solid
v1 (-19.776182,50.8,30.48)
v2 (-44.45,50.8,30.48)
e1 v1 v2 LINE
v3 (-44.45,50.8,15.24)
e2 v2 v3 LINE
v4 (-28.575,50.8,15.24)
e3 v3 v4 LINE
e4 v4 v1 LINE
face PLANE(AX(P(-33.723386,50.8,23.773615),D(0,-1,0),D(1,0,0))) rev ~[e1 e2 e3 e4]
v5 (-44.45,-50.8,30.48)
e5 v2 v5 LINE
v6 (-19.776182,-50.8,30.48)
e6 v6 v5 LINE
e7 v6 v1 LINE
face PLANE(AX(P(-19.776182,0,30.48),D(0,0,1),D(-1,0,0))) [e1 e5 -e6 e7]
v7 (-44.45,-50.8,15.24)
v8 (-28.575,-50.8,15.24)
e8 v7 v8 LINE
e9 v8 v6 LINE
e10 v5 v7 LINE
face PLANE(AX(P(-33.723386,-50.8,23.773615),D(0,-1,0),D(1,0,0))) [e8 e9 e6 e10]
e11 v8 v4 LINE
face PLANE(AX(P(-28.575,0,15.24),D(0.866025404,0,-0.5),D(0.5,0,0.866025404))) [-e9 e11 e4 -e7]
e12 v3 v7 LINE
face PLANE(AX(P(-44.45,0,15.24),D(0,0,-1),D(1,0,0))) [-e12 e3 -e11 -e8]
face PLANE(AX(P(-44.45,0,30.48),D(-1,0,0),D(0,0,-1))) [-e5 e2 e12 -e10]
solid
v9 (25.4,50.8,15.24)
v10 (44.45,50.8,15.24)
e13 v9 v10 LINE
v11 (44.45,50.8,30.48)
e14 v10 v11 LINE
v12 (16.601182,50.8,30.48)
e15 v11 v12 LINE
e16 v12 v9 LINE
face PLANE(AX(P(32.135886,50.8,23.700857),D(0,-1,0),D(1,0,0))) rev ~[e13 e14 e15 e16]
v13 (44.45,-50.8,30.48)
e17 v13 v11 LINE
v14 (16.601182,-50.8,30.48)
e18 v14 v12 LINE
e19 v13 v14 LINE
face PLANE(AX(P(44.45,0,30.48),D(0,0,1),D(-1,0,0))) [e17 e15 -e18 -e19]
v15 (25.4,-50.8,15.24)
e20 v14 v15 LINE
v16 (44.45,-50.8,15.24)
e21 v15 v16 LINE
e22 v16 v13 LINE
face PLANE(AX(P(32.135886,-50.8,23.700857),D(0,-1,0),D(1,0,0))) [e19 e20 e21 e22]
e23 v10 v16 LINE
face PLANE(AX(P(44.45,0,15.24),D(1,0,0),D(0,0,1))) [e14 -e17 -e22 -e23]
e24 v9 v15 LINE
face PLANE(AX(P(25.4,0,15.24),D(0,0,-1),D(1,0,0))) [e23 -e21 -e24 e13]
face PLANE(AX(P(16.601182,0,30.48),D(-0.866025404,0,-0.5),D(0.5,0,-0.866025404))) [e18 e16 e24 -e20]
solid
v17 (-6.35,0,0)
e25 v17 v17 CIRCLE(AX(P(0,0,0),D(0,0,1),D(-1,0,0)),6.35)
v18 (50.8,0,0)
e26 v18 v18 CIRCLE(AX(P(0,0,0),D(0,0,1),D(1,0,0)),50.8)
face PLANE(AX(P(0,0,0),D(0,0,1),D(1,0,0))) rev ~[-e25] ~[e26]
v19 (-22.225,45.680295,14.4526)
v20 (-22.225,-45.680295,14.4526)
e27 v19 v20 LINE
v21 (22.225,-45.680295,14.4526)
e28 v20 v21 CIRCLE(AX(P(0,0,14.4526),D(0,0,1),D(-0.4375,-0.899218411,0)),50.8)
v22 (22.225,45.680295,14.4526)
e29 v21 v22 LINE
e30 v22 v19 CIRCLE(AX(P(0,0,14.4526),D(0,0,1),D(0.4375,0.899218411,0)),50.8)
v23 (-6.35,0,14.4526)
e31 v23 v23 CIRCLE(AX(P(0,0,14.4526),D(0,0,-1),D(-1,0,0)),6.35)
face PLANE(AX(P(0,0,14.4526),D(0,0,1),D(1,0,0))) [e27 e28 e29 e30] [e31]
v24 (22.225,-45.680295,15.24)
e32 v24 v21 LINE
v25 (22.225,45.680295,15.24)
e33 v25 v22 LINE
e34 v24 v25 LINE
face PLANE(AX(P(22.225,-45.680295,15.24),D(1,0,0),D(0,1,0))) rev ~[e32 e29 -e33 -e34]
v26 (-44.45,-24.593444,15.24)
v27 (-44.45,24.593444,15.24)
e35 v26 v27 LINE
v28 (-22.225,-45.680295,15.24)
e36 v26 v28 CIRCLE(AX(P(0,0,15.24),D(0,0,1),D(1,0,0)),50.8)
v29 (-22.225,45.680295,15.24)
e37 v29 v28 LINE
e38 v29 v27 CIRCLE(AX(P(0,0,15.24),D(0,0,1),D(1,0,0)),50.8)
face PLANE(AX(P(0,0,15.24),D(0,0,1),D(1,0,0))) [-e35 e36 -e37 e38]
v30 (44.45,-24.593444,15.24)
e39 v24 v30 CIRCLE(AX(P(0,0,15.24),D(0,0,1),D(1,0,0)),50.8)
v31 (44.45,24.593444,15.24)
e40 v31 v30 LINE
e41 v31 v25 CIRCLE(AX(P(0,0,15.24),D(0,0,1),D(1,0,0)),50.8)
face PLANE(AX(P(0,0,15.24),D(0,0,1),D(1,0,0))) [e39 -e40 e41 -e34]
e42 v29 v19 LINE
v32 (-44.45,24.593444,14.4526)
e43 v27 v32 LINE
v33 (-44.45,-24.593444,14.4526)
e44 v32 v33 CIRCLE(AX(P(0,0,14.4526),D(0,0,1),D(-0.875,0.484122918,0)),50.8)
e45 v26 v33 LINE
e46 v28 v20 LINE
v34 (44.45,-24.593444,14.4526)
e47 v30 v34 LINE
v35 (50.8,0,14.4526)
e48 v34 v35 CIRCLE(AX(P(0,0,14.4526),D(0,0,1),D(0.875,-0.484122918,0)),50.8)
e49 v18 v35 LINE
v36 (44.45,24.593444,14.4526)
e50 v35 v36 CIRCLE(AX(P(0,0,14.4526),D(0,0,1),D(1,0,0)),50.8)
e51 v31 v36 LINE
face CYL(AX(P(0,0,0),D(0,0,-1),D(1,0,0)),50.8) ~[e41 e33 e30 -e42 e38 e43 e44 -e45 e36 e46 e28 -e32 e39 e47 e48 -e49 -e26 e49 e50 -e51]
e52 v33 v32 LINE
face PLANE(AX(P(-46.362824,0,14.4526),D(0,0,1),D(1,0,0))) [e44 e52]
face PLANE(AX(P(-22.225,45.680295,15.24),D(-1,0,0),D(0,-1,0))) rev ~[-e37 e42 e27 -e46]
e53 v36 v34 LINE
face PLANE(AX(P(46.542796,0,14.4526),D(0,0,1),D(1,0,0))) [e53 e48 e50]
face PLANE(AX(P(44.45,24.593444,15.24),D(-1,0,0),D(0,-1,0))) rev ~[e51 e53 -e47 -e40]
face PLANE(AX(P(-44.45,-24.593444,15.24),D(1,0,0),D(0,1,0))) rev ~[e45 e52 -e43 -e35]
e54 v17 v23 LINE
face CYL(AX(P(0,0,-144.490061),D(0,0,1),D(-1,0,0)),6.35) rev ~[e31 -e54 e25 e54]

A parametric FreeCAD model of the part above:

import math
import FreeCAD as App
import Part
import Sketcher
from FreeCAD import Vector
Q = App.Units.Quantity

doc = App.newDocument("Part")
params = doc.addObject("Spreadsheet::Sheet", "Params")
for row, (alias, value) in enumerate([
    ("sketch1_diameter", "4 in"),
    ("pad1_length", "0.6 in"),
    ("sketch2_diameter", "0.5 in"),
    ("hole_diameter", "0.5 in"),
    ("sketch3_radius", "2 in"),
    ("sketch3_diameter", "0.5 in"),
    ("pocket1_length", "0.031 in"),
    ("sketch4_height", "0.6 in"),
    ("sketch4_width", "0.75 in"),
    ("pad2_length", "2 in"),
    ("pad2_length2", "2 in"),
    ("sketch5_height", "0.6 in"),
    ("sketch5_width", "0.625 in"),
    ("pad3_length", "2 in"),
    ("pad3_length2", "2 in"),
], start=1):
    params.set(f"A{row}", alias)
    params.set(f"B{row}", "=" + value)
    params.setAlias(f"B{row}", alias)

body = doc.addObject("PartDesign::Body", "Body")

# Sketch on XY plane
sketch1 = doc.addObject("Sketcher::SketchObject", "Sketch")
body.addObject(sketch1)
sketch1.AttachmentSupport = (doc.XY_Plane, [""])
sketch1.MapMode = "FlatFace"
sketch1.addGeometry(Part.Circle(Vector(0, 0, 0), Vector(0, 0, 1), 50.8), False)
sketch1.addConstraint([
    Sketcher.Constraint("Coincident", 0, 3, -1, 1),
    Sketcher.Constraint("Diameter", 0, Q("4 in")),
])
sketch1.setExpression("Constraints[1]", "Params.sketch1_diameter")
pad1 = doc.addObject("PartDesign::Pad", "Pad")
body.addObject(pad1)
pad1.Profile = sketch1
pad1.setExpression("Length", "Params.pad1_length")

# Sketch on XY plane
sketch2 = doc.addObject("Sketcher::SketchObject", "Sketch001")
body.addObject(sketch2)
sketch2.AttachmentSupport = (doc.XY_Plane, [""])
sketch2.MapMode = "FlatFace"
sketch2.addGeometry(Part.Circle(Vector(0, 0, 0), Vector(0, 0, 1), 6.35), False)
sketch2.addConstraint([
    Sketcher.Constraint("Coincident", 0, 3, -1, 1),
    Sketcher.Constraint("Diameter", 0, Q("0.5 in")),
])
sketch2.setExpression("Constraints[1]", "Params.sketch2_diameter")
doc.recompute()
hole = doc.addObject("PartDesign::Hole", "Hole")
body.addObject(hole)
hole.Profile = sketch2
hole.ThreadType = "None"
hole.setExpression("Diameter", "Params.hole_diameter")
hole.DepthType = "ThroughAll"
hole.Reversed = True

# Sketch on XY plane
sketch3 = doc.addObject("Sketcher::SketchObject", "Sketch002")
body.addObject(sketch3)
sketch3.AttachmentSupport = (doc.XY_Plane, [""])
sketch3.MapMode = "FlatFace"
sketch3.AttachmentOffset = App.Placement(Vector(0, 0, 0.6 * 25.4), App.Rotation())
sketch3.addGeometry([
    Part.LineSegment(Vector(-44.45, -24.593444, 0), Vector(-44.45, 24.593444, 0)),  # 0
    Part.ArcOfCircle(Part.Circle(Vector(0, 0, 0), Vector(0, 0, 1), 50.8), math.radians(151.044976), math.radians(208.955024)),  # 1
    Part.ArcOfCircle(Part.Circle(Vector(0, 0, 0), Vector(0, 0, 1), 50.8), math.radians(0), math.radians(28.955024)),  # 2
    Part.LineSegment(Vector(44.45, 24.593444, 0), Vector(44.45, -24.593444, 0)),  # 3
    Part.ArcOfCircle(Part.Circle(Vector(0, 0, 0), Vector(0, 0, 1), 50.8), math.radians(-28.955024), math.radians(0)),  # 4
    Part.ArcOfCircle(Part.Circle(Vector(0, 0, 0), Vector(0, 0, 1), 50.8), math.radians(64.05552), math.radians(115.94448)),  # 5
    Part.LineSegment(Vector(-22.225, 45.680295, 0), Vector(-22.225, -45.680295, 0)),  # 6
    Part.ArcOfCircle(Part.Circle(Vector(0, 0, 0), Vector(0, 0, 1), 50.8), math.radians(-115.94448), math.radians(-64.05552)),  # 7
    Part.LineSegment(Vector(22.225, -45.680295, 0), Vector(22.225, 45.680295, 0)),  # 8
    Part.Circle(Vector(0, 0, 0), Vector(0, 0, 1), 6.35),  # 9
], False)
sketch3.addConstraint([
    Sketcher.Constraint("Coincident", 0, 1, 1, 2),
    Sketcher.Constraint("Coincident", 1, 1, 0, 2),
    Sketcher.Constraint("Coincident", 2, 2, 3, 1),
    Sketcher.Constraint("Coincident", 3, 2, 4, 1),
    Sketcher.Constraint("Tangent", 4, 2, 2, 1),
    Sketcher.Constraint("Coincident", 5, 2, 6, 1),
    Sketcher.Constraint("Coincident", 6, 2, 7, 1),
    Sketcher.Constraint("Coincident", 7, 2, 8, 1),
    Sketcher.Constraint("Coincident", 8, 2, 5, 1),
    Sketcher.Constraint("Vertical", 0),
    Sketcher.Constraint("Vertical", 3),
    Sketcher.Constraint("Vertical", 6),
    Sketcher.Constraint("Vertical", 8),
    Sketcher.Constraint("Coincident", 1, 3, -1, 1),
    Sketcher.Constraint("Coincident", 2, 3, -1, 1),
    Sketcher.Constraint("Coincident", 5, 3, -1, 1),
    Sketcher.Constraint("Coincident", 7, 3, -1, 1),
    Sketcher.Constraint("Coincident", 9, 3, -1, 1),
    Sketcher.Constraint("Equal", 1, 2),
    Sketcher.Constraint("Equal", 2, 4),
    Sketcher.Constraint("Equal", 4, 5),
    Sketcher.Constraint("Equal", 5, 7),
    Sketcher.Constraint("PointOnObject", 4, 2, -1),
    Sketcher.Constraint("Horizontal", 1, 1, 2, 2),
    Sketcher.Constraint("Horizontal", 6, 2, 7, 2),
    Sketcher.Constraint("Radius", 1, Q("2 in")),
    Sketcher.Constraint("Diameter", 9, Q("0.5 in")),
    Sketcher.Constraint("DistanceX", 0, 1, -1, 1, Q("1.75 in")),
    Sketcher.Constraint("DistanceX", 6, 2, 7, 2, Q("1.75 in")),
])
sketch3.setExpression("Constraints[25]", "Params.sketch3_radius")
sketch3.setExpression("Constraints[26]", "Params.sketch3_diameter")
pocket1 = doc.addObject("PartDesign::Pocket", "Pocket")
body.addObject(pocket1)
pocket1.Profile = sketch3
pocket1.setExpression("Length", "Params.pocket1_length")
body2 = doc.addObject("PartDesign::Body", "Body001")

# Sketch on XZ plane
sketch4 = doc.addObject("Sketcher::SketchObject", "Sketch003")
body2.addObject(sketch4)
sketch4.AttachmentSupport = (doc.getObject("XZ_Plane001"), [""])
sketch4.MapMode = "FlatFace"
sketch4.addGeometry([
    Part.LineSegment(Vector(16.601182, 30.48, 0), Vector(25.4, 15.24, 0)),
    Part.LineSegment(Vector(25.4, 15.24, 0), Vector(44.45, 15.24, 0)),
    Part.LineSegment(Vector(44.45, 15.24, 0), Vector(44.45, 30.48, 0)),
    Part.LineSegment(Vector(44.45, 30.48, 0), Vector(16.601182, 30.48, 0)),
], False)
sketch4.addConstraint([
    Sketcher.Constraint("Coincident", 0, 2, 1, 1),
    Sketcher.Constraint("Coincident", 1, 2, 2, 1),
    Sketcher.Constraint("Coincident", 2, 2, 3, 1),
    Sketcher.Constraint("Coincident", 3, 2, 0, 1),
    Sketcher.Constraint("Horizontal", 1),
    Sketcher.Constraint("Vertical", 2),
    Sketcher.Constraint("Horizontal", 3),
    Sketcher.Constraint("DistanceY", 2, 1, 2, 2, Q("0.6 in")),
    Sketcher.Constraint("DistanceX", -1, 1, 0, 2, Q("1 in")),
    Sketcher.Constraint("Angle", 0, Q("-60 deg")),
    Sketcher.Constraint("DistanceX", 1, 1, 1, 2, Q("0.75 in")),
    Sketcher.Constraint("DistanceY", -1, 1, 0, 2, Q("0.6 in")),
])
sketch4.setExpression("Constraints[7]", "Params.sketch4_height")
sketch4.setExpression("Constraints[10]", "Params.sketch4_width")
pad2 = doc.addObject("PartDesign::Pad", "Pad001")
body2.addObject(pad2)
pad2.Profile = sketch4
pad2.Type = "TwoLengths"
pad2.setExpression("Length", "Params.pad2_length")
pad2.setExpression("Length2", "Params.pad2_length2")
body3 = doc.addObject("PartDesign::Body", "Body002")

# Sketch on XZ plane
sketch5 = doc.addObject("Sketcher::SketchObject", "Sketch004")
body3.addObject(sketch5)
sketch5.AttachmentSupport = (doc.getObject("XZ_Plane002"), [""])
sketch5.MapMode = "FlatFace"
sketch5.addGeometry([
    Part.LineSegment(Vector(-19.776182, 30.48, 0), Vector(-44.45, 30.48, 0)),
    Part.LineSegment(Vector(-44.45, 30.48, 0), Vector(-44.45, 15.24, 0)),
    Part.LineSegment(Vector(-44.45, 15.24, 0), Vector(-28.575, 15.24, 0)),
    Part.LineSegment(Vector(-28.575, 15.24, 0), Vector(-19.776182, 30.48, 0)),
], False)
sketch5.addConstraint([
    Sketcher.Constraint("Coincident", 0, 2, 1, 1),
    Sketcher.Constraint("Coincident", 1, 2, 2, 1),
    Sketcher.Constraint("Coincident", 2, 2, 3, 1),
    Sketcher.Constraint("Coincident", 3, 2, 0, 1),
    Sketcher.Constraint("Horizontal", 0),
    Sketcher.Constraint("Vertical", 1),
    Sketcher.Constraint("Horizontal", 2),
    Sketcher.Constraint("DistanceY", 1, 2, 1, 1, Q("0.6 in")),
    Sketcher.Constraint("Angle", 3, Q("60 deg")),
    Sketcher.Constraint("DistanceY", -1, 1, 0, 2, Q("1.2 in")),
    Sketcher.Constraint("DistanceX", 2, 1, 2, 2, Q("0.625 in")),
    Sketcher.Constraint("DistanceX", 0, 2, -1, 1, Q("1.75 in")),
])
sketch5.setExpression("Constraints[7]", "Params.sketch5_height")
sketch5.setExpression("Constraints[10]", "Params.sketch5_width")
pad3 = doc.addObject("PartDesign::Pad", "Pad002")
body3.addObject(pad3)
pad3.Profile = sketch5
pad3.Type = "TwoLengths"
pad3.setExpression("Length", "Params.pad3_length")
pad3.setExpression("Length2", "Params.pad3_length2")

doc.recompute()
